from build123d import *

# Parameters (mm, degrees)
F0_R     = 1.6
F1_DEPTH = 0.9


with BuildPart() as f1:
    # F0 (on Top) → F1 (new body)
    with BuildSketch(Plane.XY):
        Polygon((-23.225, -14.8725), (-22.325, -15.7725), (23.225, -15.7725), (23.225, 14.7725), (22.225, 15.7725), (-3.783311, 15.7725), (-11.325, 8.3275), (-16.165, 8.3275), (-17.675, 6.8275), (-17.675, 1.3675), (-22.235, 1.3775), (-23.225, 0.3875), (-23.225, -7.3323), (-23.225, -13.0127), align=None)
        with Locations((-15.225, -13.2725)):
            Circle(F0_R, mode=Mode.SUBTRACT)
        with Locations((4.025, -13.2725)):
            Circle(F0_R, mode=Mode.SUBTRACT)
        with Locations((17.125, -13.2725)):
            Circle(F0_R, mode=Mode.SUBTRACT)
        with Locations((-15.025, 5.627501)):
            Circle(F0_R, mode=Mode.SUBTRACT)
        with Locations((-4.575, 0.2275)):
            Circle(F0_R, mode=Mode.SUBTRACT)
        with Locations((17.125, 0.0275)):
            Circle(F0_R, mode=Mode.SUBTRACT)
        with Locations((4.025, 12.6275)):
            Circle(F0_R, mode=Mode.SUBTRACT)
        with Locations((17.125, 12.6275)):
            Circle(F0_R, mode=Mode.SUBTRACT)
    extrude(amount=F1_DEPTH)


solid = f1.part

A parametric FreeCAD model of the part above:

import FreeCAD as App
import Part
import Sketcher
from FreeCAD import Vector
Q = App.Units.Quantity

doc = App.newDocument("Part")
body = doc.addObject("PartDesign::Body", "Body")

# Sketch on XY plane
sketch1 = body.newObject("Sketcher::SketchObject", "Sketch")
sketch1.AttachmentSupport = (doc.getObject("XY_Plane"), [""])
sketch1.MapMode = "FlatFace"
sketch1.addGeometry(Part.LineSegment(Vector(-23.2, -14.9, 0), Vector(-22.3, -15.8, 0)), False)
sketch1.addGeometry(Part.LineSegment(Vector(-22.3, -15.8, 0), Vector(23.2, -15.8, 0)), False)
sketch1.addGeometry(Part.LineSegment(Vector(23.2, -15.8, 0), Vector(23.2, 14.8, 0)), False)
sketch1.addGeometry(Part.LineSegment(Vector(23.2, 14.8, 0), Vector(22.2, 15.8, 0)), False)
sketch1.addGeometry(Part.LineSegment(Vector(22.2, 15.8, 0), Vector(-3.8, 15.8, 0)), False)
sketch1.addGeometry(Part.LineSegment(Vector(-3.8, 15.8, 0), Vector(-11.3, 8.3, 0)), False)
sketch1.addGeometry(Part.LineSegment(Vector(-11.3, 8.3, 0), Vector(-16.2, 8.3, 0)), False)
sketch1.addGeometry(Part.LineSegment(Vector(-16.2, 8.3, 0), Vector(-17.7, 6.8, 0)), False)
sketch1.addGeometry(Part.LineSegment(Vector(-17.7, 6.8, 0), Vector(-17.7, 1.4, 0)), False)
sketch1.addGeometry(Part.LineSegment(Vector(-17.7, 1.4, 0), Vector(-22.2, 1.4, 0)), False)
sketch1.addGeometry(Part.LineSegment(Vector(-22.2, 1.4, 0), Vector(-23.2, 0.4, 0)), False)
sketch1.addGeometry(Part.LineSegment(Vector(-23.2, 0.4, 0), Vector(-23.2, -14.9, 0)), False)
sketch1.addGeometry(Part.Circle(Vector(-15.2, -13.3, 0), Vector(0, 0, 1), 1.6), False)
sketch1.addGeometry(Part.Circle(Vector(4, -13.3, 0), Vector(0, 0, 1), 1.6), False)
sketch1.addGeometry(Part.Circle(Vector(17.1, -13.3, 0), Vector(0, 0, 1), 1.6), False)
sketch1.addGeometry(Part.Circle(Vector(-15, 5.6, 0), Vector(0, 0, 1), 1.6), False)
sketch1.addGeometry(Part.Circle(Vector(-4.6, 0.2, 0), Vector(0, 0, 1), 1.6), False)
sketch1.addGeometry(Part.Circle(Vector(17.1, 0, 0), Vector(0, 0, 1), 1.6), False)
sketch1.addGeometry(Part.Circle(Vector(4, 12.6, 0), Vector(0, 0, 1), 1.6), False)
sketch1.addGeometry(Part.Circle(Vector(17.1, 12.6, 0), Vector(0, 0, 1), 1.6), False)
sketch1.addConstraint(Sketcher.Constraint("Coincident", 0, 2, 1, 1))
sketch1.addConstraint(Sketcher.Constraint("Coincident", 1, 2, 2, 1))
sketch1.addConstraint(Sketcher.Constraint("Coincident", 2, 2, 3, 1))
sketch1.addConstraint(Sketcher.Constraint("Coincident", 3, 2, 4, 1))
sketch1.addConstraint(Sketcher.Constraint("Coincident", 4, 2, 5, 1))
sketch1.addConstraint(Sketcher.Constraint("Coincident", 5, 2, 6, 1))
sketch1.addConstraint(Sketcher.Constraint("Coincident", 6, 2, 7, 1))
sketch1.addConstraint(Sketcher.Constraint("Coincident", 7, 2, 8, 1))
sketch1.addConstraint(Sketcher.Constraint("Coincident", 8, 2, 9, 1))
sketch1.addConstraint(Sketcher.Constraint("Coincident", 9, 2, 10, 1))
sketch1.addConstraint(Sketcher.Constraint("Coincident", 10, 2, 11, 1))
sketch1.addConstraint(Sketcher.Constraint("Coincident", 11, 2, 0, 1))
sketch1.addConstraint(Sketcher.Constraint("Horizontal", 1))
sketch1.addConstraint(Sketcher.Constraint("Vertical", 2))
sketch1.addConstraint(Sketcher.Constraint("Horizontal", 4))
sketch1.addConstraint(Sketcher.Constraint("Horizontal", 6))
sketch1.addConstraint(Sketcher.Constraint("Vertical", 8))
sketch1.addConstraint(Sketcher.Constraint("Vertical", 11))
sketch1.addConstraint(Sketcher.Constraint("Equal", 12, 13))
sketch1.addConstraint(Sketcher.Constraint("Equal", 13, 14))
sketch1.addConstraint(Sketcher.Constraint("Equal", 14, 15))
sketch1.addConstraint(Sketcher.Constraint("Equal", 15, 16))
sketch1.addConstraint(Sketcher.Constraint("Equal", 16, 17))
sketch1.addConstraint(Sketcher.Constraint("Equal", 17, 18))
sketch1.addConstraint(Sketcher.Constraint("Equal", 18, 19))
sketch1.addConstraint(Sketcher.Constraint("Parallel", 0, 3))
sketch1.addConstraint(Sketcher.Constraint("Perpendicular", 3, 10))
sketch1.addConstraint(Sketcher.Constraint("Horizontal", 12, 3, 13, 3))
sketch1.addConstraint(Sketcher.Constraint("Horizontal", 13, 3, 14, 3))
sketch1.addConstraint(Sketcher.Constraint("Horizontal", 18, 3, 19, 3))
sketch1.addConstraint(Sketcher.Constraint("Vertical", 14, 3, 17, 3))
sketch1.addConstraint(Sketcher.Constraint("Vertical", 13, 3, 18, 3))
sketch1.addConstraint(Sketcher.Constraint("Vertical", 17, 3, 19, 3))
sketch1.addConstraint(Sketcher.Constraint("Diameter", 12, Q("3.2 mm")))
sketch1.addConstraint(Sketcher.Constraint("Angle", 0, Q("-45 deg")))
sketch1.addConstraint(Sketcher.Constraint("DistanceY", 15, 3, 18, 3, Q("6.999999 mm")))
sketch1.addConstraint(Sketcher.Constraint("DistanceY", 0, 2, 16, 3, Q("16 mm")))
sketch1.addConstraint(Sketcher.Constraint("DistanceX", 3, 2, 2, 2, Q("1 mm")))
sketch1.addConstraint(Sketcher.Constraint("DistanceX", 11, 2, 12, 3, Q("8 mm")))
sketch1.addConstraint(Sketcher.Constraint("DistanceX", 1, 1, 1, 2, Q("45.55 mm")))
sketch1.addConstraint(Sketcher.Constraint("DistanceX", 6, 2, 6, 1, Q("4.84 mm")))
sketch1.addConstraint(Sketcher.Constraint("DistanceY", 8, 2, 8, 1, Q("5.46 mm")))
sketch1.addConstraint(Sketcher.Constraint("DistanceY", 11, 2, 11, 1, Q("15.26 mm")))
sketch1.addConstraint(Sketcher.Constraint("DistanceX", 13, 3, 14, 3, Q("13.1 mm")))
sketch1.addConstraint(Sketcher.Constraint("DistanceX", 12, 3, 15, 3, Q("0.2 mm")))
sketch1.addConstraint(Sketcher.Constraint("DistanceY", 12, 3, 15, 3, Q("18.900001 mm")))
sketch1.addConstraint(Sketcher.Constraint("DistanceY", 16, 3, 15, 3, Q("5.400001 mm")))
sketch1.addConstraint(Sketcher.Constraint("DistanceX", 16, 3, 13, 3, Q("8.6 mm")))
sketch1.addConstraint(Sketcher.Constraint("DistanceY", 14, 3, 17, 3, Q("13.3 mm")))
sketch1.addConstraint(Sketcher.Constraint("DistanceX", 0, 2, 12, 3, Q("7.1 mm")))
sketch1.addConstraint(Sketcher.Constraint("DistanceX", 14, 3, 1, 2, Q("6.1 mm")))
sketch1.addConstraint(Sketcher.Constraint("DistanceX", 15, 3, 5, 2, Q("3.7 mm")))
sketch1.addConstraint(Sketcher.Constraint("DistanceY", 15, 3, 5, 2, Q("2.699999 mm")))
sketch1.addConstraint(Sketcher.Constraint("DistanceY", 7, 2, 6, 2, Q("1.5 mm")))
sketch1.addConstraint(Sketcher.Constraint("DistanceX", 7, 2, 16, 3, Q("13.1 mm")))
sketch1.addConstraint(Sketcher.Constraint("DistanceY", 2, 1, 2, 2, Q("30.545 mm")))
sketch1.addConstraint(Sketcher.Constraint("DistanceX", 9, 2, 8, 2, Q("4.56 mm")))
sketch1.addConstraint(Sketcher.Constraint("DistanceX", 12, 3, -1, 1, Q("15.225 mm")))
sketch1.addConstraint(Sketcher.Constraint("DistanceX", 4, 2, 4, 1, Q("26.008311 mm")))
sketch1.addConstraint(Sketcher.Constraint("DistanceY", 12, 3, -1, 1, Q("13.2725 mm")))
pad1 = body.newObject("PartDesign::Pad", "Pad")
pad1.Profile = sketch1
pad1.Length = 0.9

doc.recompute()
